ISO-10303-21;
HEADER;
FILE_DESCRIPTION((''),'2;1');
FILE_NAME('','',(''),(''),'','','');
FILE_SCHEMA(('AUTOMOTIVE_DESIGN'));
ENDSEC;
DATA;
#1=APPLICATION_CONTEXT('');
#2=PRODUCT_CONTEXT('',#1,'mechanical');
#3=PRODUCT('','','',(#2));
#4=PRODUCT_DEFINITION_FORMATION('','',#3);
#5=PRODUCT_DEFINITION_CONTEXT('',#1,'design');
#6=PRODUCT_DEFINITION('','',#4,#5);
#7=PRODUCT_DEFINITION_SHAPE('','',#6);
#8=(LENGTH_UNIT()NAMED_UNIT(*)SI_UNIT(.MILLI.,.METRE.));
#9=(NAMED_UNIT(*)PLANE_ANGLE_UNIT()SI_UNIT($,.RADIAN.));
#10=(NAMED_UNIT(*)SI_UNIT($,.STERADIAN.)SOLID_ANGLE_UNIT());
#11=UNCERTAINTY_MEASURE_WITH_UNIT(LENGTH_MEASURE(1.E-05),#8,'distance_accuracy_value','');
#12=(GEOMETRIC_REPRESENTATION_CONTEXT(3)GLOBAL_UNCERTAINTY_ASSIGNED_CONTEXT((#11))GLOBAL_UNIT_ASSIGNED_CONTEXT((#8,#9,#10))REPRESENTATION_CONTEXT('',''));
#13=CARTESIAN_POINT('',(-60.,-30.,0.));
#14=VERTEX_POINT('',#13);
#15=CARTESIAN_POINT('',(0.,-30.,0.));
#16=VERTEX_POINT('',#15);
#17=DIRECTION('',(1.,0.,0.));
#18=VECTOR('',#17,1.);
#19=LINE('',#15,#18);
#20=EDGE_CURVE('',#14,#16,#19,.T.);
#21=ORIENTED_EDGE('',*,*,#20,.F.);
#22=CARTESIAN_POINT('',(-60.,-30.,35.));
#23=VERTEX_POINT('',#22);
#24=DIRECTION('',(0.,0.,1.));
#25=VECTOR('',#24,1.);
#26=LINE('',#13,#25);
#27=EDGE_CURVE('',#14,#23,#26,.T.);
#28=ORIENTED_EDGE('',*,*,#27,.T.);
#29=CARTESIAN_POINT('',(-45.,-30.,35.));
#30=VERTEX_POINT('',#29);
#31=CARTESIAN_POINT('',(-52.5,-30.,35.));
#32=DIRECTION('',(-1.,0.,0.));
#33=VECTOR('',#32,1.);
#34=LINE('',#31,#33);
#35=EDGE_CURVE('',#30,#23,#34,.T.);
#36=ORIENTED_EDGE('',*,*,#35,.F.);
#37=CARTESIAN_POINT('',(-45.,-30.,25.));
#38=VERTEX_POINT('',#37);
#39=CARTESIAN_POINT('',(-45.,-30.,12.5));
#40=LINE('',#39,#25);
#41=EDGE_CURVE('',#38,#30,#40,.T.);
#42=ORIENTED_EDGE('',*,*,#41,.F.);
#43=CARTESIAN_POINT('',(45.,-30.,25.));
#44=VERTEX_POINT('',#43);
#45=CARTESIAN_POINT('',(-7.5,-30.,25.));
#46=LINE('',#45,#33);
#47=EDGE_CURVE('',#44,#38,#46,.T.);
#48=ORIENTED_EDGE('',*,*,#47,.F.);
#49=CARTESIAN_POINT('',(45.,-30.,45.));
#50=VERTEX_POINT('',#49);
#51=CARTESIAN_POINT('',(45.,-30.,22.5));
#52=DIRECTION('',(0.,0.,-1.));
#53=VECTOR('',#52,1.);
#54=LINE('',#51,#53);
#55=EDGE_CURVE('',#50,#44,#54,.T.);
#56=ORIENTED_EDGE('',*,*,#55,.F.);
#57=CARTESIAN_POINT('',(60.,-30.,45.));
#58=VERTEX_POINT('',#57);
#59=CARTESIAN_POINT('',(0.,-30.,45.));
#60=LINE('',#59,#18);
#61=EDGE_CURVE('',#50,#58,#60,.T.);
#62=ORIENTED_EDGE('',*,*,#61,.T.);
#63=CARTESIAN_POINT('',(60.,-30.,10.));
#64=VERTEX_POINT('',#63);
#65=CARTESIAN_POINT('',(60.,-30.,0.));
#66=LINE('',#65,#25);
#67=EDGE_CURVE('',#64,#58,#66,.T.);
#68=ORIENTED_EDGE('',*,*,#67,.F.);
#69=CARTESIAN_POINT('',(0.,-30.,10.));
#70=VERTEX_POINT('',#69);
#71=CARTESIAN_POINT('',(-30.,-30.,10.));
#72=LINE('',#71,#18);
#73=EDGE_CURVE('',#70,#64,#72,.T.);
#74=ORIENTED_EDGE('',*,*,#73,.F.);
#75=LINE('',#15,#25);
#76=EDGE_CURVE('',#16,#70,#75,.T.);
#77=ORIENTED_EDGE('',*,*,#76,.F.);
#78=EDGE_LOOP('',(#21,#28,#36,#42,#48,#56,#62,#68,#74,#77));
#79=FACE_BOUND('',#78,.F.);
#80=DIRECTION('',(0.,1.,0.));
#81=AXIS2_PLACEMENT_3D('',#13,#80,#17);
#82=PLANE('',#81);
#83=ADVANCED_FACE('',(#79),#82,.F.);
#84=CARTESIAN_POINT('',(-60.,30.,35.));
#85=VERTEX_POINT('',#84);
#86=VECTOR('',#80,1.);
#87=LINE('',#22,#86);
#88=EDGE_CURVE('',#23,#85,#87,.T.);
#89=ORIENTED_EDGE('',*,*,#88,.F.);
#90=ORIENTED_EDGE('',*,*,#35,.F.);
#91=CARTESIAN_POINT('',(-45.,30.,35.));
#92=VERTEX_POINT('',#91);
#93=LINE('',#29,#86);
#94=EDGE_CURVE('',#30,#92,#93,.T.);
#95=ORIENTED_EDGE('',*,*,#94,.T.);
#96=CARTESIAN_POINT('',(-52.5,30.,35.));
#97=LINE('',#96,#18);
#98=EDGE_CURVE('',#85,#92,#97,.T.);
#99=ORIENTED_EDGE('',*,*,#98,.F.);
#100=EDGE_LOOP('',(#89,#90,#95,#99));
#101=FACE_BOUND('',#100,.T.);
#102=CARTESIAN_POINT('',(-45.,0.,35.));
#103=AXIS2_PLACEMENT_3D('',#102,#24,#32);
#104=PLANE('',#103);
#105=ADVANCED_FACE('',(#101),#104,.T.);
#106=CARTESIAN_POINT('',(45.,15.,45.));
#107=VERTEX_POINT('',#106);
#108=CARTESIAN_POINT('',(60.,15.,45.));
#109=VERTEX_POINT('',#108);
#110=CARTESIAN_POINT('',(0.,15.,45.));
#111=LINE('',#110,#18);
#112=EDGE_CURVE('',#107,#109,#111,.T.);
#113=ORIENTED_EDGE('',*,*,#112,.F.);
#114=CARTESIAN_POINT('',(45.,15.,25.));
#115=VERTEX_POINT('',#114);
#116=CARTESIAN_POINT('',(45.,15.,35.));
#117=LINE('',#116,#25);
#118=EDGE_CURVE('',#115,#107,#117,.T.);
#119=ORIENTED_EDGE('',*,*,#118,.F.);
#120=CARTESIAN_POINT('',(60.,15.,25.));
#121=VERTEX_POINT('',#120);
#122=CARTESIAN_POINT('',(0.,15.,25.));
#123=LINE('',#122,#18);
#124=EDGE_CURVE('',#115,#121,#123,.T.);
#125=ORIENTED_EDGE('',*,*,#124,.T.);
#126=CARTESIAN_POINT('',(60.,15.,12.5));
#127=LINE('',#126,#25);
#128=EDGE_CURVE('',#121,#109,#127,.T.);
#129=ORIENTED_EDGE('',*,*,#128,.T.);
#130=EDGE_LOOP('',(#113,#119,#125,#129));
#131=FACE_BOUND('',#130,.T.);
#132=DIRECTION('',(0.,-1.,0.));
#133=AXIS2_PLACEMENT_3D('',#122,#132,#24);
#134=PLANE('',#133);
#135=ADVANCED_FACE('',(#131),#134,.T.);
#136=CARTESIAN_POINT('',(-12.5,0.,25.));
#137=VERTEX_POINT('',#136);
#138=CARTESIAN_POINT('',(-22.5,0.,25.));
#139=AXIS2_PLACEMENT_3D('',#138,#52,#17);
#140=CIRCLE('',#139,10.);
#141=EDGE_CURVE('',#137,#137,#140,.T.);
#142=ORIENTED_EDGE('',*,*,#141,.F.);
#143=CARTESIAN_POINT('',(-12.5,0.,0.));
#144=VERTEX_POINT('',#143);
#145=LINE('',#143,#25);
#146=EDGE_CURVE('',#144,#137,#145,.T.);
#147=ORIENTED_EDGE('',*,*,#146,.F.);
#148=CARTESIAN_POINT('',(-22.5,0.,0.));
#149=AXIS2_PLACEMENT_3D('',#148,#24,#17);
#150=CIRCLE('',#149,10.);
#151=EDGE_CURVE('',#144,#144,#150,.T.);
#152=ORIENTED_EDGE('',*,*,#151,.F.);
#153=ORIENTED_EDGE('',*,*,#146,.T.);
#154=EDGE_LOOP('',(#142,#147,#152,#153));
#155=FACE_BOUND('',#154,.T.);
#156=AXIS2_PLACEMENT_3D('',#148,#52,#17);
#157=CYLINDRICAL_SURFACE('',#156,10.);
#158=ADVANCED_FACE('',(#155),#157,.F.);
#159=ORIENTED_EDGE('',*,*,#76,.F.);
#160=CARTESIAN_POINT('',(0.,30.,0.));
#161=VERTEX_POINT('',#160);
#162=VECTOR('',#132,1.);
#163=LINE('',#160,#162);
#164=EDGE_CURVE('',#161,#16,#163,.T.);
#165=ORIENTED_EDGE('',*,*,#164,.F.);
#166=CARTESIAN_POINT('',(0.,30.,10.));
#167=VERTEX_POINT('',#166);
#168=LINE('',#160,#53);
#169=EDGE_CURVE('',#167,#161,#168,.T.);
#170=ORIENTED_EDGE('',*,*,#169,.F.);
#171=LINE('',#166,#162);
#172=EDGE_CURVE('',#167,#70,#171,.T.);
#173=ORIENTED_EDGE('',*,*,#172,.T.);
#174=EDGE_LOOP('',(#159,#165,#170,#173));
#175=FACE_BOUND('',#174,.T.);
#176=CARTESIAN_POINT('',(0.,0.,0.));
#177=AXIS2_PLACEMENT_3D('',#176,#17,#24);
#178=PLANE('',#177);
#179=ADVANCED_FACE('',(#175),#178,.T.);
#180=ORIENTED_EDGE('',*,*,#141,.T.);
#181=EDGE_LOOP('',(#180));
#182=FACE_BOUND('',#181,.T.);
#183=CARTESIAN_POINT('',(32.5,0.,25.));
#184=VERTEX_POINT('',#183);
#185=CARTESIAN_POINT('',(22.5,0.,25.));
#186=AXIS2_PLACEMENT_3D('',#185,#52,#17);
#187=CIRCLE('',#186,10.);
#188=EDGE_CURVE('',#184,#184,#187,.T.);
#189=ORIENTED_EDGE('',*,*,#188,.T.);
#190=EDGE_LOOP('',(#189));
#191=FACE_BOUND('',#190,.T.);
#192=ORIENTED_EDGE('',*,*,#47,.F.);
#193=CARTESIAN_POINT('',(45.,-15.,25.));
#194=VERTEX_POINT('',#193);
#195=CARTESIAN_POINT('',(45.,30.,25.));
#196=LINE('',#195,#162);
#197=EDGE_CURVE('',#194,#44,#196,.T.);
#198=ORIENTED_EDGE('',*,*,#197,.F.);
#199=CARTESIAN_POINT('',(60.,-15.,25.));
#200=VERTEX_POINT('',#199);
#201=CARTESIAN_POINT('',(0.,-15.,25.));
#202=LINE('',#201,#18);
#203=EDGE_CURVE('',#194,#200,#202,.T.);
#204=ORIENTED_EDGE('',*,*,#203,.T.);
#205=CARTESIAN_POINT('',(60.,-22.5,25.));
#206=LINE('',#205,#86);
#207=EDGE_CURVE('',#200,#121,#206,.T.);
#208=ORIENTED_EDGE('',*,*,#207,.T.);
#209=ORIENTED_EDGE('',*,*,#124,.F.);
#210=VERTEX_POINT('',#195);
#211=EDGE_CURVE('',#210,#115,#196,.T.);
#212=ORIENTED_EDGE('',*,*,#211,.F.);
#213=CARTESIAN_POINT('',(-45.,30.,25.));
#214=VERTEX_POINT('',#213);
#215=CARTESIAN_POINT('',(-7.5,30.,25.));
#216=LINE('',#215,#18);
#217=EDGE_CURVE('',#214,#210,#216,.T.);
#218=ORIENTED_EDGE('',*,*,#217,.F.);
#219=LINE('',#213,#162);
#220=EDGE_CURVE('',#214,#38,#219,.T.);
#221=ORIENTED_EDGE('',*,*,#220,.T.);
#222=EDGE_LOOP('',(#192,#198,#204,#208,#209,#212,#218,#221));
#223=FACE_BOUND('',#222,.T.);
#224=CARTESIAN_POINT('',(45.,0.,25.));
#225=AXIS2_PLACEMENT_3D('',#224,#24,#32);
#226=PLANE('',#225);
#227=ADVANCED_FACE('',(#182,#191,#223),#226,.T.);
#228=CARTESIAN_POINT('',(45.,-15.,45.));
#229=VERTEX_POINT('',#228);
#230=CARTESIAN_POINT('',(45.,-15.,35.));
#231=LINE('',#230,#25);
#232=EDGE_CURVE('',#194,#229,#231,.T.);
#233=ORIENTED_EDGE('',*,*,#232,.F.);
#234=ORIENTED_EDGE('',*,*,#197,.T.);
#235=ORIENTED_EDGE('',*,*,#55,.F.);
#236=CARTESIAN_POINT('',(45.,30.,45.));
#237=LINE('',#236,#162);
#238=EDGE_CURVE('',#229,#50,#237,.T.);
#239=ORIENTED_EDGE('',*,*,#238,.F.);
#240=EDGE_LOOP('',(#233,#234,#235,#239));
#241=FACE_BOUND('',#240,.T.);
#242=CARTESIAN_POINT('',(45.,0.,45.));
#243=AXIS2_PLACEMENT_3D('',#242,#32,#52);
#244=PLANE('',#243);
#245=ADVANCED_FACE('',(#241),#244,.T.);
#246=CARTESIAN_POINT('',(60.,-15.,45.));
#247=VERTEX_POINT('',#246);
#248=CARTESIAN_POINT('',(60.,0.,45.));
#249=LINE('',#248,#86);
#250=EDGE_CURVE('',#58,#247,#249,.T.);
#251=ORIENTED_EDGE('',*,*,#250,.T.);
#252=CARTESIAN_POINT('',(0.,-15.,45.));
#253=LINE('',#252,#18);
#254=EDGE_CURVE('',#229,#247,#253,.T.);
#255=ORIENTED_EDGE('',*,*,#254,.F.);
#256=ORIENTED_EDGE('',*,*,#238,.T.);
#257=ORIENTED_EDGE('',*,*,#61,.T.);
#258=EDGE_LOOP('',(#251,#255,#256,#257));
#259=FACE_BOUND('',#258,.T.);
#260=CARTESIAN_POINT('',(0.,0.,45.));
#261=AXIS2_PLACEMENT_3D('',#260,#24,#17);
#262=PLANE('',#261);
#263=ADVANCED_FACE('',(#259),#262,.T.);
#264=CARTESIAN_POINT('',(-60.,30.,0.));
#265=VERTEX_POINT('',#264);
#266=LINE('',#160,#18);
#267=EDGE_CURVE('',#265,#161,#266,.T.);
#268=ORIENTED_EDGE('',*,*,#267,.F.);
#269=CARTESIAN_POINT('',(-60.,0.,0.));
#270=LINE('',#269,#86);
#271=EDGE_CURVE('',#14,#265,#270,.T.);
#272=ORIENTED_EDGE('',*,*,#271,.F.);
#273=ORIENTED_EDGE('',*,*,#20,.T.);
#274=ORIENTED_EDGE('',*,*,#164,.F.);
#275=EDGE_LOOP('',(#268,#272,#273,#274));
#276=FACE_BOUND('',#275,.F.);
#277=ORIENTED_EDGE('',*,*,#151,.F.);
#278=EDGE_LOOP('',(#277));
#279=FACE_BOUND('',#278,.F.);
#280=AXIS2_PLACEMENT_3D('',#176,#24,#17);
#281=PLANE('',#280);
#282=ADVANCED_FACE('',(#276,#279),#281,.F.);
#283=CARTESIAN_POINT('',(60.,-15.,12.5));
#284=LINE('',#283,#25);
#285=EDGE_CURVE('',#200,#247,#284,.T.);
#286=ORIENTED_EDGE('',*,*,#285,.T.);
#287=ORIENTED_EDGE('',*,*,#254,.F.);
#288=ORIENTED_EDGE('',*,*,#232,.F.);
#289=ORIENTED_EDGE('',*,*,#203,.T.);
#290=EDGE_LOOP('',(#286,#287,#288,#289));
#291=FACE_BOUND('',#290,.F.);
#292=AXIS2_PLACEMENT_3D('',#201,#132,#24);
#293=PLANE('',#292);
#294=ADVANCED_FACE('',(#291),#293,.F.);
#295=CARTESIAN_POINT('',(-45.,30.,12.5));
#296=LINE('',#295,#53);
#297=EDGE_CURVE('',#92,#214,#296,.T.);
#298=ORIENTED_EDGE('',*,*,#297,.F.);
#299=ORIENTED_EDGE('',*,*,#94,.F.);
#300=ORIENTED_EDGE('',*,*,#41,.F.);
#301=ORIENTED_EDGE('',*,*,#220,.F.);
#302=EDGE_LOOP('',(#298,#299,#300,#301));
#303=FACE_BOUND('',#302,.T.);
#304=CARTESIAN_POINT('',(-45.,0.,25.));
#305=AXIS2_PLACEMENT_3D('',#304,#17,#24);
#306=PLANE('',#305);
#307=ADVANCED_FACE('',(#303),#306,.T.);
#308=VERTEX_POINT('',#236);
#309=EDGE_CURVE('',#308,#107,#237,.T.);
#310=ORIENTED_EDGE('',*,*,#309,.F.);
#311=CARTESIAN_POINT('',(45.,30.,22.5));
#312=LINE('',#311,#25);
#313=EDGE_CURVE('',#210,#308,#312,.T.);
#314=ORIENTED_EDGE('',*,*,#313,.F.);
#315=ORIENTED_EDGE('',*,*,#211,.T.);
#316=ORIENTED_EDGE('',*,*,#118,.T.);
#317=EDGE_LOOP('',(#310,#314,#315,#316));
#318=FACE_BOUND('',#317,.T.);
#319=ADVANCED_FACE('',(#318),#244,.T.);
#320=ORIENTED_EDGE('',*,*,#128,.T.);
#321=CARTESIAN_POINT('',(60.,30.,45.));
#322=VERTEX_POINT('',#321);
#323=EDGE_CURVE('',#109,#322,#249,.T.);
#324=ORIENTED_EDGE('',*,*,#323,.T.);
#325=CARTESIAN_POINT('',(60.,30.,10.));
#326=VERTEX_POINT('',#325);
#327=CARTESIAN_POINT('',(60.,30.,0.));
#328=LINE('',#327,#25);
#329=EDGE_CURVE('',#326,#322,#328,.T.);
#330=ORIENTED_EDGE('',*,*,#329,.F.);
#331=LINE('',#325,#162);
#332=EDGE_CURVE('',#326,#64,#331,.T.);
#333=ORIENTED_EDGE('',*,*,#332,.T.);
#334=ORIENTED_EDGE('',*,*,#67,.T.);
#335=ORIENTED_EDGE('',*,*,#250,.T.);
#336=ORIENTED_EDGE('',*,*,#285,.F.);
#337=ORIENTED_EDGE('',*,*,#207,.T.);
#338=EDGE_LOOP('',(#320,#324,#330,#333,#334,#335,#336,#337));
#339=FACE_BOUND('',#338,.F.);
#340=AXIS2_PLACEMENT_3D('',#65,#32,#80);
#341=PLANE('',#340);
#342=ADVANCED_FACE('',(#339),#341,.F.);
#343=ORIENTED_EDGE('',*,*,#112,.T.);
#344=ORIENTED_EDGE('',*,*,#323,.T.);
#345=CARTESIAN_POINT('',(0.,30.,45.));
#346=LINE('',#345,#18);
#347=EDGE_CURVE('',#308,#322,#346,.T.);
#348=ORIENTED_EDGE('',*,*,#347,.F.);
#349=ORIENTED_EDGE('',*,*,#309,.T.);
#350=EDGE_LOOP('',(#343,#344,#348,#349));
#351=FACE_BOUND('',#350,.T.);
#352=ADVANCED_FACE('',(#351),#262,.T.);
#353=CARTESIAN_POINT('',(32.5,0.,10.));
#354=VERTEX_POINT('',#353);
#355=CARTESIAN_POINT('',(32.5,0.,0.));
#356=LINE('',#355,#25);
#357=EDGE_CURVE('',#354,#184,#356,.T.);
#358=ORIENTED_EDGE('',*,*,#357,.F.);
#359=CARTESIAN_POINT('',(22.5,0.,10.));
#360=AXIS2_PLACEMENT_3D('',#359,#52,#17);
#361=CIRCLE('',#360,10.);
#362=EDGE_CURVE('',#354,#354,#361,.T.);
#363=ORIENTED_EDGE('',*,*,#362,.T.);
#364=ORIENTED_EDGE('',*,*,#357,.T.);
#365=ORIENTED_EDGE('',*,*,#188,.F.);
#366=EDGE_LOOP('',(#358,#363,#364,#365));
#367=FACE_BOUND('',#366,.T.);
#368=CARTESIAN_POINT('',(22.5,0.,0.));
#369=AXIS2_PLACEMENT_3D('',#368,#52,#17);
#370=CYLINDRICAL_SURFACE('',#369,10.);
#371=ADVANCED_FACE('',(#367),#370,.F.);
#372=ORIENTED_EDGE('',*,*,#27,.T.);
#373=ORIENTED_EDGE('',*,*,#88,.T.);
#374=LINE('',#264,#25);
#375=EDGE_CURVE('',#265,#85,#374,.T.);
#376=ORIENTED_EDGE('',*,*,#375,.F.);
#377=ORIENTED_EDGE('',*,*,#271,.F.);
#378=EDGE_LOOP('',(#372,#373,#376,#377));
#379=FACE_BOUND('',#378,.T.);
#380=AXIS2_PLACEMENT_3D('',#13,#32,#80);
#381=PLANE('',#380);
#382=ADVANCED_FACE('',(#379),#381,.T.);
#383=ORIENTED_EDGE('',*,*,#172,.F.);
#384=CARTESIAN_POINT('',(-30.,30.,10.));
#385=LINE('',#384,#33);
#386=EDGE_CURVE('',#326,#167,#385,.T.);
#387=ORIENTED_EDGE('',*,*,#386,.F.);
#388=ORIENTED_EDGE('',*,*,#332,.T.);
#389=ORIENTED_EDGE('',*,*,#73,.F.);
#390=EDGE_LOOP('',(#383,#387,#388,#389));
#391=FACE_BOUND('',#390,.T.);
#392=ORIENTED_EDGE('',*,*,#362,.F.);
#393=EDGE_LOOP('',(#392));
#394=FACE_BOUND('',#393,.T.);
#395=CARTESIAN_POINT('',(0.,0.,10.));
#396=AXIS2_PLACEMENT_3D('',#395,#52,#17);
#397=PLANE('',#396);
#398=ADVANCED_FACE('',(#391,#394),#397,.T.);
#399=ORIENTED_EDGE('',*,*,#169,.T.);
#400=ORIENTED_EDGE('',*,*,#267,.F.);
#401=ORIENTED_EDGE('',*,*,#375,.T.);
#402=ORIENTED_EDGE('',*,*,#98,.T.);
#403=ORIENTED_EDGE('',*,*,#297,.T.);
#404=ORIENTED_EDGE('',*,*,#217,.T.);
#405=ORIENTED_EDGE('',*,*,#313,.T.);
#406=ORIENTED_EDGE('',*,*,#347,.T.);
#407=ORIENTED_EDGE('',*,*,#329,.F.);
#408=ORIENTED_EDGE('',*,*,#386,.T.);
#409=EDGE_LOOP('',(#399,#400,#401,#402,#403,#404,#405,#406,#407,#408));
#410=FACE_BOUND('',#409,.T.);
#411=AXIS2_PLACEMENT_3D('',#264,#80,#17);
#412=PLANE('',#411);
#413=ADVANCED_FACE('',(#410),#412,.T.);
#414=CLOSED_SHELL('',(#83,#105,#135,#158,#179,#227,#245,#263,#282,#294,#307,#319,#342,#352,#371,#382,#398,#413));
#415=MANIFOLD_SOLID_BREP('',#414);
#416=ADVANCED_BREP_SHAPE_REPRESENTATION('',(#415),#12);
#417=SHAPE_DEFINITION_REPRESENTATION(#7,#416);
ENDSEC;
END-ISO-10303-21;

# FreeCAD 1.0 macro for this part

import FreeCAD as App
import Part
import Sketcher
from FreeCAD import Vector

doc = App.newDocument("Part")
body = doc.addObject("PartDesign::Body", "Body")

# Sketch on XY plane
sketch1 = body.newObject("Sketcher::SketchObject", "Sketch")
sketch1.AttachmentSupport = (doc.getObject("XY_Plane"), [""])
sketch1.MapMode = "FlatFace"
sketch1.addGeometry([
    Part.LineSegment(Vector(-60, 30, 0), Vector(-60, -30, 0)),
    Part.LineSegment(Vector(-60, -30, 0), Vector(60, -30, 0)),
    Part.LineSegment(Vector(60, -30, 0), Vector(60, 30, 0)),
    Part.LineSegment(Vector(60, 30, 0), Vector(-60, 30, 0)),
], False)
sketch1.addConstraint([
    Sketcher.Constraint("Coincident", 0, 2, 1, 1),
    Sketcher.Constraint("Coincident", 1, 2, 2, 1),
    Sketcher.Constraint("Coincident", 2, 2, 3, 1),
    Sketcher.Constraint("Coincident", 3, 2, 0, 1),
    Sketcher.Constraint("Vertical", 0),
    Sketcher.Constraint("Horizontal", 1),
    Sketcher.Constraint("Vertical", 2),
    Sketcher.Constraint("Horizontal", 3),
    Sketcher.Constraint("Symmetric", 0, 2, 2, 2, -1, 1),
    Sketcher.Constraint("DistanceX", 1, 1, 1, 2, 120.0),
    Sketcher.Constraint("DistanceY", 0, 2, 0, 1, 60.0),
])
pad1 = body.newObject("PartDesign::Pad", "Pad")
pad1.Profile = sketch1
pad1.Length = 45

# Sketch on XZ plane
sketch2 = body.newObject("Sketcher::SketchObject", "Sketch001")
sketch2.AttachmentSupport = (doc.getObject("XZ_Plane"), [""])
sketch2.MapMode = "FlatFace"
sketch2.addGeometry([
    Part.LineSegment(Vector(0, 10, 0), Vector(0, 0, 0)),  # 0
    Part.LineSegment(Vector(0, 0, 0), Vector(60, 0, 0)),  # 1
    Part.LineSegment(Vector(60, 0, 0), Vector(60, 10, 0)),  # 2
    Part.LineSegment(Vector(60, 10, 0), Vector(0, 10, 0)),  # 3
    Part.LineSegment(Vector(45, 45, 0), Vector(-60, 45, 0)),  # 4
    Part.LineSegment(Vector(-60, 45, 0), Vector(-60, 35, 0)),  # 5
    Part.LineSegment(Vector(-60, 35, 0), Vector(-45, 35, 0)),  # 6
    Part.LineSegment(Vector(-45, 35, 0), Vector(-45, 25, 0)),  # 7
    Part.LineSegment(Vector(-45, 25, 0), Vector(45, 25, 0)),  # 8
    Part.LineSegment(Vector(45, 25, 0), Vector(45, 45, 0)),  # 9
], False)
sketch2.addConstraint([
    Sketcher.Constraint("Coincident", 0, 2, 1, 1),
    Sketcher.Constraint("Coincident", 1, 2, 2, 1),
    Sketcher.Constraint("Coincident", 2, 2, 3, 1),
    Sketcher.Constraint("Coincident", 3, 2, 0, 1),
    Sketcher.Constraint("Coincident", 4, 2, 5, 1),
    Sketcher.Constraint("Coincident", 5, 2, 6, 1),
    Sketcher.Constraint("Coincident", 6, 2, 7, 1),
    Sketcher.Constraint("Coincident", 7, 2, 8, 1),
    Sketcher.Constraint("Coincident", 8, 2, 9, 1),
    Sketcher.Constraint("Coincident", 9, 2, 4, 1),
    Sketcher.Constraint("Vertical", 0),
    Sketcher.Constraint("Horizontal", 1),
    Sketcher.Constraint("Vertical", 2),
    Sketcher.Constraint("Horizontal", 3),
    Sketcher.Constraint("Horizontal", 4),
    Sketcher.Constraint("Vertical", 5),
    Sketcher.Constraint("Horizontal", 6),
    Sketcher.Constraint("Vertical", 7),
    Sketcher.Constraint("Horizontal", 8),
    Sketcher.Constraint("Vertical", 9),
    Sketcher.Constraint("Coincident", 0, 2, -1, 1),
    Sketcher.Constraint("Equal", 2, 5),
    Sketcher.Constraint("Equal", 5, 7),
    Sketcher.Constraint("DistanceX", 1, 1, 1, 2, 60.0),
    Sketcher.Constraint("DistanceX", 4, 2, 4, 1, 105.0),
    Sketcher.Constraint("DistanceX", 6, 1, 6, 2, 15.0),
    Sketcher.Constraint("DistanceY", 0, 2, 0, 1, 10.0),
    Sketcher.Constraint("DistanceX", 4, 2, -1, 1, 60.0),
    Sketcher.Constraint("DistanceY", -1, 1, 4, 2, 45.0),
])
pocket1 = body.newObject("PartDesign::Pocket", "Pocket")
pocket1.Profile = sketch2
pocket1.Type = "ThroughAll"
pocket1.Midplane = True

# Sketch on YZ plane
sketch3 = body.newObject("Sketcher::SketchObject", "Sketch002")
sketch3.AttachmentSupport = (doc.getObject("YZ_Plane"), [""])
sketch3.MapMode = "FlatFace"
sketch3.addGeometry([
    Part.LineSegment(Vector(-15, 45, 0), Vector(-15, 25, 0)),
    Part.LineSegment(Vector(-15, 25, 0), Vector(15, 25, 0)),
    Part.LineSegment(Vector(15, 25, 0), Vector(15, 45, 0)),
    Part.LineSegment(Vector(15, 45, 0), Vector(-15, 45, 0)),
], False)
sketch3.addConstraint([
    Sketcher.Constraint("Coincident", 0, 2, 1, 1),
    Sketcher.Constraint("Coincident", 1, 2, 2, 1),
    Sketcher.Constraint("Coincident", 2, 2, 3, 1),
    Sketcher.Constraint("Coincident", 3, 2, 0, 1),
    Sketcher.Constraint("Vertical", 0),
    Sketcher.Constraint("Horizontal", 1),
    Sketcher.Constraint("Vertical", 2),
    Sketcher.Constraint("Horizontal", 3),
    Sketcher.Constraint("DistanceX", 1, 1, 1, 2, 30.0),
    Sketcher.Constraint("DistanceY", 0, 2, 0, 1, 20.0),
    Sketcher.Constraint("DistanceX", 0, 2, -1, 1, 15.0),
    Sketcher.Constraint("DistanceY", -1, 1, 0, 2, 25.0),
])
pocket2 = body.newObject("PartDesign::Pocket", "Pocket001")
pocket2.Profile = sketch3
pocket2.Type = "ThroughAll"
pocket2.Reversed = True

# Sketch on XY plane
sketch4 = body.newObject("Sketcher::SketchObject", "Sketch003")
sketch4.AttachmentSupport = (doc.getObject("XY_Plane"), [""])
sketch4.MapMode = "FlatFace"
sketch4.addGeometry([
    Part.Circle(Vector(-22, 0, 0), Vector(0, 0, 1), 10),
    Part.Circle(Vector(22, 0, 0), Vector(0, 0, 1), 10),
], False)
sketch4.addConstraint([
    Sketcher.Constraint("Equal", 0, 1),
    Sketcher.Constraint("Symmetric", 0, 3, 1, 3, -1, 1),
    Sketcher.Constraint("PointOnObject", 0, 3, -1),
    Sketcher.Constraint("Diameter", 0, 20.0),
    Sketcher.Constraint("DistanceX", 0, 3, 1, 3, 45.0),
])
pocket3 = body.newObject("PartDesign::Pocket", "Pocket002")
pocket3.Profile = sketch4
pocket3.Type = "ThroughAll"
pocket3.Reversed = True

doc.recompute()
